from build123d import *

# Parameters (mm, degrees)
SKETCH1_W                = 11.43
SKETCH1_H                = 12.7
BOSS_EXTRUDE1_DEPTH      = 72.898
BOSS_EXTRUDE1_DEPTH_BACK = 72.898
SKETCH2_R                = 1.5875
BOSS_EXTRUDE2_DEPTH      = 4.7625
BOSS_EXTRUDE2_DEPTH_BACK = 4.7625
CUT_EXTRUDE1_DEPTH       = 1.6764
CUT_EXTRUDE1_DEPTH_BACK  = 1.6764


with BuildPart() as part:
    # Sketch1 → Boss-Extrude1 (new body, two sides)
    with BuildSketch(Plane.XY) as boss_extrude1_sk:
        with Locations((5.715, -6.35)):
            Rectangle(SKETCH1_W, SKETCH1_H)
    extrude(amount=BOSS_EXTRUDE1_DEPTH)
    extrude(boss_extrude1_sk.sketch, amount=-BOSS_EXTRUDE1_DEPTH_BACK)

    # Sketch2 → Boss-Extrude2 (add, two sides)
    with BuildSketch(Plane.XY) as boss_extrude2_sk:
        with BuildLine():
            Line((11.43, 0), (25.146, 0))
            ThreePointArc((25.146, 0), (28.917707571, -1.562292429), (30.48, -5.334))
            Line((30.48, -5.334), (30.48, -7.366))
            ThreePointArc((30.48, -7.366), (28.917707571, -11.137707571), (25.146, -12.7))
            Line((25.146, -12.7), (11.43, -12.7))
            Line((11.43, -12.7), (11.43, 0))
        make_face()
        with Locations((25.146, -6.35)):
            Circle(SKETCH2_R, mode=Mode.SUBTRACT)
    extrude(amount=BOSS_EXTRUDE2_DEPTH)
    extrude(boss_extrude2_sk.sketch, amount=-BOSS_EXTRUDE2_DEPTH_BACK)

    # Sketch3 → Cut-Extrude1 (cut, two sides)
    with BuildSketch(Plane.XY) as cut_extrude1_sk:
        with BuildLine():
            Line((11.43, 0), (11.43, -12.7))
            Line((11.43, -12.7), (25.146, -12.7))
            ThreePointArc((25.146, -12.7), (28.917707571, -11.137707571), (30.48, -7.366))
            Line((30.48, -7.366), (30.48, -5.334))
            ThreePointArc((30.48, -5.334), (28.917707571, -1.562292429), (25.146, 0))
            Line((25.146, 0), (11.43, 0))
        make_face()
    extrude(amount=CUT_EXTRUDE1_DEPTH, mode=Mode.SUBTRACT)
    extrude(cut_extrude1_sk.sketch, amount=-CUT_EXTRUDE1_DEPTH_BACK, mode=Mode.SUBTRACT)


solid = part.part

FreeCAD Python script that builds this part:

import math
import FreeCAD as App
import Part
import Sketcher

V = App.Vector
Q = App.Units.Quantity


def add_polygon(sketch, points):
    """Adds a closed chain of lines whose ends are joined by coincident constraints."""
    first, n = sketch.GeometryCount, len(points)
    for a, b in zip(points, points[1:] + points[:1]):
        sketch.addGeometry(Part.LineSegment(App.Vector(*a, 0), App.Vector(*b, 0)), False)
    for i in range(n):
        sketch.addConstraint(Sketcher.Constraint("Coincident", first + i, 2, first + (i + 1) % n, 1))

doc = App.newDocument("Part")
body = doc.addObject("PartDesign::Body", "Body")

sketch1 = body.newObject("Sketcher::SketchObject", "Sketch")
sketch1.AttachmentSupport = (doc.getObject("XY_Plane"), [""])
sketch1.MapMode = "FlatFace"
add_polygon(sketch1, [(0, 0), (0, -13), (11, -13), (11, 0)])
sketch1.addConstraint([
    Sketcher.Constraint("Vertical", 0),
    Sketcher.Constraint("Horizontal", 1),
    Sketcher.Constraint("Vertical", 2),
    Sketcher.Constraint("Horizontal", 3),
    Sketcher.Constraint("Coincident", 3, 2, -1, 1),
    Sketcher.Constraint("DistanceY", 0, 2, 0, 1, Q("0.5 in")),
    Sketcher.Constraint("DistanceX", 1, 1, 1, 2, Q("0.45 in")),
])
pad1 = body.newObject("PartDesign::Pad", "Pad")
pad1.Profile = sketch1
pad1.Type = "TwoLengths"
pad1.Length = Q("2.87 in")
pad1.Length2 = Q("2.87 in")

sketch2 = body.newObject("Sketcher::SketchObject", "Sketch001")
sketch2.AttachmentSupport = (doc.getObject("XY_Plane"), [""])
sketch2.MapMode = "FlatFace"
sketch2.addGeometry([
    Part.LineSegment(V(25.1, 0, 0), V(11.4, 0, 0)),
    Part.LineSegment(V(11.4, 0, 0), V(11.4, -12.7, 0)),
    Part.LineSegment(V(11.4, -12.7, 0), V(25.1, -12.7, 0)),
    Part.ArcOfCircle(Part.Circle(V(25.1, -7.4, 0), V(0, 0, 1), 5.3), math.radians(-90), math.radians(0)),
    Part.LineSegment(V(30.5, -7.4, 0), V(30.5, -5.3, 0)),
    Part.ArcOfCircle(Part.Circle(V(25.1, -5.3, 0), V(0, 0, 1), 5.3), math.radians(0), math.radians(90)),
    Part.Circle(V(25.1, -6.3, 0), V(0, 0, 1), 1.6),
], False)
sketch2.addConstraint([
    Sketcher.Constraint("Coincident", 0, 2, 1, 1),
    Sketcher.Constraint("Coincident", 1, 2, 2, 1),
    Sketcher.Constraint("Tangent", 2, 2, 3, 1),
    Sketcher.Constraint("Tangent", 3, 2, 4, 1),
    Sketcher.Constraint("Tangent", 4, 2, 5, 1),
    Sketcher.Constraint("Tangent", 5, 2, 0, 1),
    Sketcher.Constraint("Horizontal", 0),
    Sketcher.Constraint("Vertical", 1),
    Sketcher.Constraint("Horizontal", 2),
    Sketcher.Constraint("Vertical", 4),
    Sketcher.Constraint("Equal", 3, 5),
    Sketcher.Constraint("PointOnObject", 0, 2, -1),
    Sketcher.Constraint("Vertical", 5, 3, 6, 3),
    Sketcher.Constraint("Radius", 3, Q("0.21 in")),
    Sketcher.Constraint("Diameter", 6, Q("0.125 in")),
    Sketcher.Constraint("DistanceY", 1, 2, 1, 1, Q("0.5 in")),
    Sketcher.Constraint("DistanceX", 0, 2, 0, 1, Q("0.54 in")),
    Sketcher.Constraint("DistanceX", -1, 1, 3, 2, Q("1.2 in")),
    Sketcher.Constraint("DistanceY", 6, 3, -1, 1, Q("0.25 in")),
])
pad2 = body.newObject("PartDesign::Pad", "Pad001")
pad2.Profile = sketch2
pad2.Type = "TwoLengths"
pad2.Length = Q("0.1875 in")
pad2.Length2 = Q("0.1875 in")

sketch3 = body.newObject("Sketcher::SketchObject", "Sketch002")
sketch3.AttachmentSupport = (doc.getObject("XY_Plane"), [""])
sketch3.MapMode = "FlatFace"
sketch3.addGeometry([
    Part.LineSegment(V(11.4, 0, 0), V(11.4, -12.7, 0)),
    Part.LineSegment(V(11.4, -12.7, 0), V(25.1, -12.7, 0)),
    Part.ArcOfCircle(Part.Circle(V(25.1, -7.4, 0), V(0, 0, 1), 5.3), math.radians(-90), math.radians(0)),
    Part.LineSegment(V(30.5, -7.4, 0), V(30.5, -5.3, 0)),
    Part.ArcOfCircle(Part.Circle(V(25.1, -5.3, 0), V(0, 0, 1), 5.3), math.radians(0), math.radians(90)),
    Part.LineSegment(V(25.1, 0, 0), V(11.4, 0, 0)),
], False)
sketch3.addConstraint([
    Sketcher.Constraint("Coincident", 0, 2, 1, 1),
    Sketcher.Constraint("Tangent", 1, 2, 2, 1),
    Sketcher.Constraint("Tangent", 2, 2, 3, 1),
    Sketcher.Constraint("Tangent", 3, 2, 4, 1),
    Sketcher.Constraint("Tangent", 4, 2, 5, 1),
    Sketcher.Constraint("Coincident", 5, 2, 0, 1),
    Sketcher.Constraint("Vertical", 0),
    Sketcher.Constraint("Horizontal", 1),
    Sketcher.Constraint("Vertical", 3),
    Sketcher.Constraint("Horizontal", 5),
    Sketcher.Constraint("Equal", 2, 4),
    Sketcher.Constraint("PointOnObject", 4, 2, -1),
    Sketcher.Constraint("Radius", 2, Q("0.21 in")),
    Sketcher.Constraint("DistanceY", 0, 2, 0, 1, Q("0.5 in")),
    Sketcher.Constraint("DistanceX", 1, 1, 1, 2, Q("0.54 in")),
    Sketcher.Constraint("DistanceX", -1, 1, 2, 2, Q("1.2 in")),
])
pocket1 = body.newObject("PartDesign::Pocket", "Pocket")
pocket1.Profile = sketch3
pocket1.Type = "TwoLengths"
pocket1.Length = Q("0.066 in")
pocket1.Length2 = Q("0.066 in")
pocket1.Reversed = True

doc.recompute()
